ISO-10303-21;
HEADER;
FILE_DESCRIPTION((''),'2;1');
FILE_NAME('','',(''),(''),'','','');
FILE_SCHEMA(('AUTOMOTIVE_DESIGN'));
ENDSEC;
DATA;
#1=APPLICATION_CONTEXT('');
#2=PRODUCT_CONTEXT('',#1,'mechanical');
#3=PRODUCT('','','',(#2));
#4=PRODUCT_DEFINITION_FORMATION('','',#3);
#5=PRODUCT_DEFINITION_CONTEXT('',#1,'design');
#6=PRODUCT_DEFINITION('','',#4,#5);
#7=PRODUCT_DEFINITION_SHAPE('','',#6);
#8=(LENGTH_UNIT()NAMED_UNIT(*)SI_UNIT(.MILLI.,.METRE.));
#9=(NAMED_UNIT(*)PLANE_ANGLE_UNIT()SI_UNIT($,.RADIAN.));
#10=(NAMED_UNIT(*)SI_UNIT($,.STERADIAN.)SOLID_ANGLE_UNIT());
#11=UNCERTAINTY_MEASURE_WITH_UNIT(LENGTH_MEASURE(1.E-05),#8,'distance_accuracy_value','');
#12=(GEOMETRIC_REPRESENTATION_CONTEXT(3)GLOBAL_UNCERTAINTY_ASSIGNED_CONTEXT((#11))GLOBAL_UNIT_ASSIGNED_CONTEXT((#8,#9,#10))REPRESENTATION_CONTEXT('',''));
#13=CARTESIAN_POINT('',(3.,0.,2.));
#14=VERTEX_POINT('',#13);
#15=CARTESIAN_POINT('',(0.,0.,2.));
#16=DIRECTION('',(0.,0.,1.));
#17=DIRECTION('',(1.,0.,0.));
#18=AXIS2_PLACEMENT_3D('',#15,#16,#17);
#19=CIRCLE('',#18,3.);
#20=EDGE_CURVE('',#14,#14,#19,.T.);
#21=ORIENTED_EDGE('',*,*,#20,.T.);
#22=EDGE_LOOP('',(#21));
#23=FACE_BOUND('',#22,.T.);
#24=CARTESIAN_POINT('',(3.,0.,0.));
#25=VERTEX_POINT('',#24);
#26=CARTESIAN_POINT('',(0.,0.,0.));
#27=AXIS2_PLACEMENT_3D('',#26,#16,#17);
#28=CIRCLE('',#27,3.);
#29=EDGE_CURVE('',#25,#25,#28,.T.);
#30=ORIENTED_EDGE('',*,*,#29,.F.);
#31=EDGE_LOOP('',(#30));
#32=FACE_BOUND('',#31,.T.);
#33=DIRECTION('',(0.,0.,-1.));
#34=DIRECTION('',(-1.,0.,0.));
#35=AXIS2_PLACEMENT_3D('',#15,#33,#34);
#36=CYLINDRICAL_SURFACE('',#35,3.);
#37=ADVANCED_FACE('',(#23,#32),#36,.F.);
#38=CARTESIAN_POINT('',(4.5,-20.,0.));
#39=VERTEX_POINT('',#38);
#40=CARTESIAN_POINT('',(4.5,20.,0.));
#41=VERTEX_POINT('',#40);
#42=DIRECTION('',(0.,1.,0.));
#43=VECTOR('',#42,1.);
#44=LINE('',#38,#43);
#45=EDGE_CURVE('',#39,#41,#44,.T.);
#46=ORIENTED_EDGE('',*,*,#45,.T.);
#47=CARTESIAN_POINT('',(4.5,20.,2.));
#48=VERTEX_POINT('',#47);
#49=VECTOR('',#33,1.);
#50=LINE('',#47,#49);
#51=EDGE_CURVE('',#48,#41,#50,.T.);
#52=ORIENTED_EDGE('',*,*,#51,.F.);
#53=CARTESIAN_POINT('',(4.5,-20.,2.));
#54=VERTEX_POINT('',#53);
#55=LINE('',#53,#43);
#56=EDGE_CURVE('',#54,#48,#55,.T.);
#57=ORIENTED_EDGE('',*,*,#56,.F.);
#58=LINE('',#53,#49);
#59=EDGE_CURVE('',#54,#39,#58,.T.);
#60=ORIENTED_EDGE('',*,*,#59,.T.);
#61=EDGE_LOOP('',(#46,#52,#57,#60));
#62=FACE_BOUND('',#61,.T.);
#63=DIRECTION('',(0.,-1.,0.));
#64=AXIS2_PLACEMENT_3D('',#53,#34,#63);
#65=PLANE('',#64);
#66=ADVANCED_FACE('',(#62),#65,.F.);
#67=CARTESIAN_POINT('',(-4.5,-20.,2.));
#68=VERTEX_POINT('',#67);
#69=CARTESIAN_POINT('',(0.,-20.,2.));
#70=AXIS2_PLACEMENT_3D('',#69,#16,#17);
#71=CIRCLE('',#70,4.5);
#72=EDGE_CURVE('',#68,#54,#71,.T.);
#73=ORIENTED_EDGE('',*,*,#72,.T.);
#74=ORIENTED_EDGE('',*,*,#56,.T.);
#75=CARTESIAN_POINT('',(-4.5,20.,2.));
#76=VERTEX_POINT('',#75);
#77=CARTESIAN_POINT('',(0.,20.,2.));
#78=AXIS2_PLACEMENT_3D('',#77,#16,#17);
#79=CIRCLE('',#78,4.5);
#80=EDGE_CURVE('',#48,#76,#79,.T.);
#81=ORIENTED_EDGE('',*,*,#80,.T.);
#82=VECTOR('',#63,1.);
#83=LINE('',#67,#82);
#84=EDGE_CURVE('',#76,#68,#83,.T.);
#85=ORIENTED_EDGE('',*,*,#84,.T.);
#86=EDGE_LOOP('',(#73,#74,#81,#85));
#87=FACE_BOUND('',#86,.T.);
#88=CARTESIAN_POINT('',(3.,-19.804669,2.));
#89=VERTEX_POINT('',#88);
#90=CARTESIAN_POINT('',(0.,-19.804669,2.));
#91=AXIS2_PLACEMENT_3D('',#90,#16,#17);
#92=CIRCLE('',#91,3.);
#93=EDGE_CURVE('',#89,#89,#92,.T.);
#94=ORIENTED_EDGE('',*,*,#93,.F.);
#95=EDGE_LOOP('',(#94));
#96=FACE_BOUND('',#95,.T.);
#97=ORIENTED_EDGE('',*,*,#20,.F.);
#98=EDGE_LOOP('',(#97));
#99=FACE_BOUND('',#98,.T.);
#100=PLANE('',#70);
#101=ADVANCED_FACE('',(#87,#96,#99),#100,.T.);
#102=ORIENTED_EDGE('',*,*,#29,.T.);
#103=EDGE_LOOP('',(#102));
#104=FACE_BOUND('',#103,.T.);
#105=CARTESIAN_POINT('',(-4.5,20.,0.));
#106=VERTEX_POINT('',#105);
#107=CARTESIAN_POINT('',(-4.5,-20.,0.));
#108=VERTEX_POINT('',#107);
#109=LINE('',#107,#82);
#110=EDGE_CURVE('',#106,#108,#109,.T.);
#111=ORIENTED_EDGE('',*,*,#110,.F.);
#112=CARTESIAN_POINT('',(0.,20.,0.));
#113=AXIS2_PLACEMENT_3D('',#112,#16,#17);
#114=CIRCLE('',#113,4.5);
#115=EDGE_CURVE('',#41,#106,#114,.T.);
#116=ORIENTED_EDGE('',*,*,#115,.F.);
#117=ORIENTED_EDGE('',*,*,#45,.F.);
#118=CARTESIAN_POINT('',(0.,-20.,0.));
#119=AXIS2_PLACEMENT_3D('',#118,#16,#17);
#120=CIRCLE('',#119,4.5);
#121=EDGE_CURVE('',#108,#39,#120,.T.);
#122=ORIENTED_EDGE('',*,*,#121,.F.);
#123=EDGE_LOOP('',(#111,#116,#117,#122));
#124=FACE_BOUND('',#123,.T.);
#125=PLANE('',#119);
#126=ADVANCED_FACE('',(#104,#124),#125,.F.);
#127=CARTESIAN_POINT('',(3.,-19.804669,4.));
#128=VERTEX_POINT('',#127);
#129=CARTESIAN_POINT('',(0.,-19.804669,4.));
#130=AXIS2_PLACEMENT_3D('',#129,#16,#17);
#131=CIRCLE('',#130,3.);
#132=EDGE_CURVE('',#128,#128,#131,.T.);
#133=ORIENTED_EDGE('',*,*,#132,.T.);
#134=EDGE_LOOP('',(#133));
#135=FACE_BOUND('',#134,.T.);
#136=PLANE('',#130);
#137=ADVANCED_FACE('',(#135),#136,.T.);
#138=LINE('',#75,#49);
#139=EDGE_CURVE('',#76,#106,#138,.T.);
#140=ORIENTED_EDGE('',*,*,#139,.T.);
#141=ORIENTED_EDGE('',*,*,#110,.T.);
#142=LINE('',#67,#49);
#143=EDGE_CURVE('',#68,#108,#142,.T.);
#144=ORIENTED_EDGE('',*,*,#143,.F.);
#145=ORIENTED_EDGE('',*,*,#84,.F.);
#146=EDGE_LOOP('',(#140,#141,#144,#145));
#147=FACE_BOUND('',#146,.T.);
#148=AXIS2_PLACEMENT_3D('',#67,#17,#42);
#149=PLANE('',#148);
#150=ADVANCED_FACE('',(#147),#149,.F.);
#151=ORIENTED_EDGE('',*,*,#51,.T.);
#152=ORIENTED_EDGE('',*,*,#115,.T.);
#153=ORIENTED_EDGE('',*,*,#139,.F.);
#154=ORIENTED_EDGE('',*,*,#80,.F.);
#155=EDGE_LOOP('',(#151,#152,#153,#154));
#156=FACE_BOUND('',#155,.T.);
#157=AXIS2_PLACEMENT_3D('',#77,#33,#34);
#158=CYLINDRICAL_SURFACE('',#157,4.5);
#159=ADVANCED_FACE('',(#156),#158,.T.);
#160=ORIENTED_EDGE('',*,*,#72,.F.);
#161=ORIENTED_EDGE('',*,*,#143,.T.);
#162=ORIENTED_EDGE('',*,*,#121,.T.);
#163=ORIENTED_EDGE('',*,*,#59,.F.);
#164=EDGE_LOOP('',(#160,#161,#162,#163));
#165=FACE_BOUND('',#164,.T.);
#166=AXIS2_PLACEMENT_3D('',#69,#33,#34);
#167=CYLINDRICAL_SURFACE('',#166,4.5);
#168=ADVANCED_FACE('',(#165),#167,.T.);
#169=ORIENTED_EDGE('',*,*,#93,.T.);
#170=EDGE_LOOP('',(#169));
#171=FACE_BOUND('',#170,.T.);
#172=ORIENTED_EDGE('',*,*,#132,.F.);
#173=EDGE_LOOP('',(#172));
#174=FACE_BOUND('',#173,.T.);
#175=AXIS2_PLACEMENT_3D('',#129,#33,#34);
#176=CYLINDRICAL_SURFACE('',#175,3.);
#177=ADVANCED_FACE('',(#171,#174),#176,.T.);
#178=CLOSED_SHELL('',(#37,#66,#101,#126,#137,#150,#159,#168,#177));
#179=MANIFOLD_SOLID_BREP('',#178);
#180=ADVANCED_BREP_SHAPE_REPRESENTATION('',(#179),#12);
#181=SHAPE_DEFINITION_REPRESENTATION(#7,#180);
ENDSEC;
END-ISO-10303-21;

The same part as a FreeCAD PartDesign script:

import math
import FreeCAD as App
import Part
import Sketcher

V = App.Vector

doc = App.newDocument("Part")
body = doc.addObject("PartDesign::Body", "Body")

# Sketch on XY plane
sketch1 = body.newObject("Sketcher::SketchObject", "Sketch")
sketch1.AttachmentSupport = (doc.getObject("XY_Plane"), [""])
sketch1.MapMode = "FlatFace"
sketch1.addGeometry([
    Part.LineSegment(V(-4.5, 20, 0), V(-4.5, -20, 0)),  # 0
    Part.ArcOfCircle(Part.Circle(V(0, -20, 0), V(0, 0, 1), 4.5), math.radians(180), math.radians(360)),  # 1
    Part.LineSegment(V(4.5, -20, 0), V(4.5, 20, 0)),  # 2
    Part.ArcOfCircle(Part.Circle(V(0, 20, 0), V(0, 0, 1), 4.5), math.radians(0), math.radians(180)),  # 3
    Part.Circle(V(0, 0, 0), V(0, 0, 1), 3),  # 4
], False)
sketch1.addConstraint([
    Sketcher.Constraint("Tangent", 0, 2, 1, 1),
    Sketcher.Constraint("Tangent", 1, 2, 2, 1),
    Sketcher.Constraint("Tangent", 2, 2, 3, 1),
    Sketcher.Constraint("Tangent", 3, 2, 0, 1),
    Sketcher.Constraint("Vertical", 0),
    Sketcher.Constraint("Vertical", 2),
    Sketcher.Constraint("Coincident", 4, 3, -1, 1),
    Sketcher.Constraint("Symmetric", 1, 3, 3, 3, -1, 1),
    Sketcher.Constraint("Diameter", 4, 6.0),
    Sketcher.Constraint("Radius", 1, 4.5),
    Sketcher.Constraint("DistanceY", 0, 2, 0, 1, 40.0),
])
pad1 = body.newObject("PartDesign::Pad", "Pad")
pad1.Profile = sketch1
pad1.Length = 2

# Sketch on XY plane
sketch2 = body.newObject("Sketcher::SketchObject", "Sketch001")
sketch2.AttachmentSupport = (doc.getObject("XY_Plane"), [""])
sketch2.MapMode = "FlatFace"
sketch2.AttachmentOffset = App.Placement(V(0, 0, 2), App.Rotation())
sketch2.addGeometry(Part.Circle(V(0, -19.8, 0), V(0, 0, 1), 3), False)
sketch2.addConstraint([
    Sketcher.Constraint("PointOnObject", 0, 3, -2),
    Sketcher.Constraint("Diameter", 0, 6.0),
    Sketcher.Constraint("DistanceY", 0, 3, -1, 1, 19.804669),
])
pad2 = body.newObject("PartDesign::Pad", "Pad001")
pad2.Profile = sketch2
pad2.Length = 2

doc.recompute()
